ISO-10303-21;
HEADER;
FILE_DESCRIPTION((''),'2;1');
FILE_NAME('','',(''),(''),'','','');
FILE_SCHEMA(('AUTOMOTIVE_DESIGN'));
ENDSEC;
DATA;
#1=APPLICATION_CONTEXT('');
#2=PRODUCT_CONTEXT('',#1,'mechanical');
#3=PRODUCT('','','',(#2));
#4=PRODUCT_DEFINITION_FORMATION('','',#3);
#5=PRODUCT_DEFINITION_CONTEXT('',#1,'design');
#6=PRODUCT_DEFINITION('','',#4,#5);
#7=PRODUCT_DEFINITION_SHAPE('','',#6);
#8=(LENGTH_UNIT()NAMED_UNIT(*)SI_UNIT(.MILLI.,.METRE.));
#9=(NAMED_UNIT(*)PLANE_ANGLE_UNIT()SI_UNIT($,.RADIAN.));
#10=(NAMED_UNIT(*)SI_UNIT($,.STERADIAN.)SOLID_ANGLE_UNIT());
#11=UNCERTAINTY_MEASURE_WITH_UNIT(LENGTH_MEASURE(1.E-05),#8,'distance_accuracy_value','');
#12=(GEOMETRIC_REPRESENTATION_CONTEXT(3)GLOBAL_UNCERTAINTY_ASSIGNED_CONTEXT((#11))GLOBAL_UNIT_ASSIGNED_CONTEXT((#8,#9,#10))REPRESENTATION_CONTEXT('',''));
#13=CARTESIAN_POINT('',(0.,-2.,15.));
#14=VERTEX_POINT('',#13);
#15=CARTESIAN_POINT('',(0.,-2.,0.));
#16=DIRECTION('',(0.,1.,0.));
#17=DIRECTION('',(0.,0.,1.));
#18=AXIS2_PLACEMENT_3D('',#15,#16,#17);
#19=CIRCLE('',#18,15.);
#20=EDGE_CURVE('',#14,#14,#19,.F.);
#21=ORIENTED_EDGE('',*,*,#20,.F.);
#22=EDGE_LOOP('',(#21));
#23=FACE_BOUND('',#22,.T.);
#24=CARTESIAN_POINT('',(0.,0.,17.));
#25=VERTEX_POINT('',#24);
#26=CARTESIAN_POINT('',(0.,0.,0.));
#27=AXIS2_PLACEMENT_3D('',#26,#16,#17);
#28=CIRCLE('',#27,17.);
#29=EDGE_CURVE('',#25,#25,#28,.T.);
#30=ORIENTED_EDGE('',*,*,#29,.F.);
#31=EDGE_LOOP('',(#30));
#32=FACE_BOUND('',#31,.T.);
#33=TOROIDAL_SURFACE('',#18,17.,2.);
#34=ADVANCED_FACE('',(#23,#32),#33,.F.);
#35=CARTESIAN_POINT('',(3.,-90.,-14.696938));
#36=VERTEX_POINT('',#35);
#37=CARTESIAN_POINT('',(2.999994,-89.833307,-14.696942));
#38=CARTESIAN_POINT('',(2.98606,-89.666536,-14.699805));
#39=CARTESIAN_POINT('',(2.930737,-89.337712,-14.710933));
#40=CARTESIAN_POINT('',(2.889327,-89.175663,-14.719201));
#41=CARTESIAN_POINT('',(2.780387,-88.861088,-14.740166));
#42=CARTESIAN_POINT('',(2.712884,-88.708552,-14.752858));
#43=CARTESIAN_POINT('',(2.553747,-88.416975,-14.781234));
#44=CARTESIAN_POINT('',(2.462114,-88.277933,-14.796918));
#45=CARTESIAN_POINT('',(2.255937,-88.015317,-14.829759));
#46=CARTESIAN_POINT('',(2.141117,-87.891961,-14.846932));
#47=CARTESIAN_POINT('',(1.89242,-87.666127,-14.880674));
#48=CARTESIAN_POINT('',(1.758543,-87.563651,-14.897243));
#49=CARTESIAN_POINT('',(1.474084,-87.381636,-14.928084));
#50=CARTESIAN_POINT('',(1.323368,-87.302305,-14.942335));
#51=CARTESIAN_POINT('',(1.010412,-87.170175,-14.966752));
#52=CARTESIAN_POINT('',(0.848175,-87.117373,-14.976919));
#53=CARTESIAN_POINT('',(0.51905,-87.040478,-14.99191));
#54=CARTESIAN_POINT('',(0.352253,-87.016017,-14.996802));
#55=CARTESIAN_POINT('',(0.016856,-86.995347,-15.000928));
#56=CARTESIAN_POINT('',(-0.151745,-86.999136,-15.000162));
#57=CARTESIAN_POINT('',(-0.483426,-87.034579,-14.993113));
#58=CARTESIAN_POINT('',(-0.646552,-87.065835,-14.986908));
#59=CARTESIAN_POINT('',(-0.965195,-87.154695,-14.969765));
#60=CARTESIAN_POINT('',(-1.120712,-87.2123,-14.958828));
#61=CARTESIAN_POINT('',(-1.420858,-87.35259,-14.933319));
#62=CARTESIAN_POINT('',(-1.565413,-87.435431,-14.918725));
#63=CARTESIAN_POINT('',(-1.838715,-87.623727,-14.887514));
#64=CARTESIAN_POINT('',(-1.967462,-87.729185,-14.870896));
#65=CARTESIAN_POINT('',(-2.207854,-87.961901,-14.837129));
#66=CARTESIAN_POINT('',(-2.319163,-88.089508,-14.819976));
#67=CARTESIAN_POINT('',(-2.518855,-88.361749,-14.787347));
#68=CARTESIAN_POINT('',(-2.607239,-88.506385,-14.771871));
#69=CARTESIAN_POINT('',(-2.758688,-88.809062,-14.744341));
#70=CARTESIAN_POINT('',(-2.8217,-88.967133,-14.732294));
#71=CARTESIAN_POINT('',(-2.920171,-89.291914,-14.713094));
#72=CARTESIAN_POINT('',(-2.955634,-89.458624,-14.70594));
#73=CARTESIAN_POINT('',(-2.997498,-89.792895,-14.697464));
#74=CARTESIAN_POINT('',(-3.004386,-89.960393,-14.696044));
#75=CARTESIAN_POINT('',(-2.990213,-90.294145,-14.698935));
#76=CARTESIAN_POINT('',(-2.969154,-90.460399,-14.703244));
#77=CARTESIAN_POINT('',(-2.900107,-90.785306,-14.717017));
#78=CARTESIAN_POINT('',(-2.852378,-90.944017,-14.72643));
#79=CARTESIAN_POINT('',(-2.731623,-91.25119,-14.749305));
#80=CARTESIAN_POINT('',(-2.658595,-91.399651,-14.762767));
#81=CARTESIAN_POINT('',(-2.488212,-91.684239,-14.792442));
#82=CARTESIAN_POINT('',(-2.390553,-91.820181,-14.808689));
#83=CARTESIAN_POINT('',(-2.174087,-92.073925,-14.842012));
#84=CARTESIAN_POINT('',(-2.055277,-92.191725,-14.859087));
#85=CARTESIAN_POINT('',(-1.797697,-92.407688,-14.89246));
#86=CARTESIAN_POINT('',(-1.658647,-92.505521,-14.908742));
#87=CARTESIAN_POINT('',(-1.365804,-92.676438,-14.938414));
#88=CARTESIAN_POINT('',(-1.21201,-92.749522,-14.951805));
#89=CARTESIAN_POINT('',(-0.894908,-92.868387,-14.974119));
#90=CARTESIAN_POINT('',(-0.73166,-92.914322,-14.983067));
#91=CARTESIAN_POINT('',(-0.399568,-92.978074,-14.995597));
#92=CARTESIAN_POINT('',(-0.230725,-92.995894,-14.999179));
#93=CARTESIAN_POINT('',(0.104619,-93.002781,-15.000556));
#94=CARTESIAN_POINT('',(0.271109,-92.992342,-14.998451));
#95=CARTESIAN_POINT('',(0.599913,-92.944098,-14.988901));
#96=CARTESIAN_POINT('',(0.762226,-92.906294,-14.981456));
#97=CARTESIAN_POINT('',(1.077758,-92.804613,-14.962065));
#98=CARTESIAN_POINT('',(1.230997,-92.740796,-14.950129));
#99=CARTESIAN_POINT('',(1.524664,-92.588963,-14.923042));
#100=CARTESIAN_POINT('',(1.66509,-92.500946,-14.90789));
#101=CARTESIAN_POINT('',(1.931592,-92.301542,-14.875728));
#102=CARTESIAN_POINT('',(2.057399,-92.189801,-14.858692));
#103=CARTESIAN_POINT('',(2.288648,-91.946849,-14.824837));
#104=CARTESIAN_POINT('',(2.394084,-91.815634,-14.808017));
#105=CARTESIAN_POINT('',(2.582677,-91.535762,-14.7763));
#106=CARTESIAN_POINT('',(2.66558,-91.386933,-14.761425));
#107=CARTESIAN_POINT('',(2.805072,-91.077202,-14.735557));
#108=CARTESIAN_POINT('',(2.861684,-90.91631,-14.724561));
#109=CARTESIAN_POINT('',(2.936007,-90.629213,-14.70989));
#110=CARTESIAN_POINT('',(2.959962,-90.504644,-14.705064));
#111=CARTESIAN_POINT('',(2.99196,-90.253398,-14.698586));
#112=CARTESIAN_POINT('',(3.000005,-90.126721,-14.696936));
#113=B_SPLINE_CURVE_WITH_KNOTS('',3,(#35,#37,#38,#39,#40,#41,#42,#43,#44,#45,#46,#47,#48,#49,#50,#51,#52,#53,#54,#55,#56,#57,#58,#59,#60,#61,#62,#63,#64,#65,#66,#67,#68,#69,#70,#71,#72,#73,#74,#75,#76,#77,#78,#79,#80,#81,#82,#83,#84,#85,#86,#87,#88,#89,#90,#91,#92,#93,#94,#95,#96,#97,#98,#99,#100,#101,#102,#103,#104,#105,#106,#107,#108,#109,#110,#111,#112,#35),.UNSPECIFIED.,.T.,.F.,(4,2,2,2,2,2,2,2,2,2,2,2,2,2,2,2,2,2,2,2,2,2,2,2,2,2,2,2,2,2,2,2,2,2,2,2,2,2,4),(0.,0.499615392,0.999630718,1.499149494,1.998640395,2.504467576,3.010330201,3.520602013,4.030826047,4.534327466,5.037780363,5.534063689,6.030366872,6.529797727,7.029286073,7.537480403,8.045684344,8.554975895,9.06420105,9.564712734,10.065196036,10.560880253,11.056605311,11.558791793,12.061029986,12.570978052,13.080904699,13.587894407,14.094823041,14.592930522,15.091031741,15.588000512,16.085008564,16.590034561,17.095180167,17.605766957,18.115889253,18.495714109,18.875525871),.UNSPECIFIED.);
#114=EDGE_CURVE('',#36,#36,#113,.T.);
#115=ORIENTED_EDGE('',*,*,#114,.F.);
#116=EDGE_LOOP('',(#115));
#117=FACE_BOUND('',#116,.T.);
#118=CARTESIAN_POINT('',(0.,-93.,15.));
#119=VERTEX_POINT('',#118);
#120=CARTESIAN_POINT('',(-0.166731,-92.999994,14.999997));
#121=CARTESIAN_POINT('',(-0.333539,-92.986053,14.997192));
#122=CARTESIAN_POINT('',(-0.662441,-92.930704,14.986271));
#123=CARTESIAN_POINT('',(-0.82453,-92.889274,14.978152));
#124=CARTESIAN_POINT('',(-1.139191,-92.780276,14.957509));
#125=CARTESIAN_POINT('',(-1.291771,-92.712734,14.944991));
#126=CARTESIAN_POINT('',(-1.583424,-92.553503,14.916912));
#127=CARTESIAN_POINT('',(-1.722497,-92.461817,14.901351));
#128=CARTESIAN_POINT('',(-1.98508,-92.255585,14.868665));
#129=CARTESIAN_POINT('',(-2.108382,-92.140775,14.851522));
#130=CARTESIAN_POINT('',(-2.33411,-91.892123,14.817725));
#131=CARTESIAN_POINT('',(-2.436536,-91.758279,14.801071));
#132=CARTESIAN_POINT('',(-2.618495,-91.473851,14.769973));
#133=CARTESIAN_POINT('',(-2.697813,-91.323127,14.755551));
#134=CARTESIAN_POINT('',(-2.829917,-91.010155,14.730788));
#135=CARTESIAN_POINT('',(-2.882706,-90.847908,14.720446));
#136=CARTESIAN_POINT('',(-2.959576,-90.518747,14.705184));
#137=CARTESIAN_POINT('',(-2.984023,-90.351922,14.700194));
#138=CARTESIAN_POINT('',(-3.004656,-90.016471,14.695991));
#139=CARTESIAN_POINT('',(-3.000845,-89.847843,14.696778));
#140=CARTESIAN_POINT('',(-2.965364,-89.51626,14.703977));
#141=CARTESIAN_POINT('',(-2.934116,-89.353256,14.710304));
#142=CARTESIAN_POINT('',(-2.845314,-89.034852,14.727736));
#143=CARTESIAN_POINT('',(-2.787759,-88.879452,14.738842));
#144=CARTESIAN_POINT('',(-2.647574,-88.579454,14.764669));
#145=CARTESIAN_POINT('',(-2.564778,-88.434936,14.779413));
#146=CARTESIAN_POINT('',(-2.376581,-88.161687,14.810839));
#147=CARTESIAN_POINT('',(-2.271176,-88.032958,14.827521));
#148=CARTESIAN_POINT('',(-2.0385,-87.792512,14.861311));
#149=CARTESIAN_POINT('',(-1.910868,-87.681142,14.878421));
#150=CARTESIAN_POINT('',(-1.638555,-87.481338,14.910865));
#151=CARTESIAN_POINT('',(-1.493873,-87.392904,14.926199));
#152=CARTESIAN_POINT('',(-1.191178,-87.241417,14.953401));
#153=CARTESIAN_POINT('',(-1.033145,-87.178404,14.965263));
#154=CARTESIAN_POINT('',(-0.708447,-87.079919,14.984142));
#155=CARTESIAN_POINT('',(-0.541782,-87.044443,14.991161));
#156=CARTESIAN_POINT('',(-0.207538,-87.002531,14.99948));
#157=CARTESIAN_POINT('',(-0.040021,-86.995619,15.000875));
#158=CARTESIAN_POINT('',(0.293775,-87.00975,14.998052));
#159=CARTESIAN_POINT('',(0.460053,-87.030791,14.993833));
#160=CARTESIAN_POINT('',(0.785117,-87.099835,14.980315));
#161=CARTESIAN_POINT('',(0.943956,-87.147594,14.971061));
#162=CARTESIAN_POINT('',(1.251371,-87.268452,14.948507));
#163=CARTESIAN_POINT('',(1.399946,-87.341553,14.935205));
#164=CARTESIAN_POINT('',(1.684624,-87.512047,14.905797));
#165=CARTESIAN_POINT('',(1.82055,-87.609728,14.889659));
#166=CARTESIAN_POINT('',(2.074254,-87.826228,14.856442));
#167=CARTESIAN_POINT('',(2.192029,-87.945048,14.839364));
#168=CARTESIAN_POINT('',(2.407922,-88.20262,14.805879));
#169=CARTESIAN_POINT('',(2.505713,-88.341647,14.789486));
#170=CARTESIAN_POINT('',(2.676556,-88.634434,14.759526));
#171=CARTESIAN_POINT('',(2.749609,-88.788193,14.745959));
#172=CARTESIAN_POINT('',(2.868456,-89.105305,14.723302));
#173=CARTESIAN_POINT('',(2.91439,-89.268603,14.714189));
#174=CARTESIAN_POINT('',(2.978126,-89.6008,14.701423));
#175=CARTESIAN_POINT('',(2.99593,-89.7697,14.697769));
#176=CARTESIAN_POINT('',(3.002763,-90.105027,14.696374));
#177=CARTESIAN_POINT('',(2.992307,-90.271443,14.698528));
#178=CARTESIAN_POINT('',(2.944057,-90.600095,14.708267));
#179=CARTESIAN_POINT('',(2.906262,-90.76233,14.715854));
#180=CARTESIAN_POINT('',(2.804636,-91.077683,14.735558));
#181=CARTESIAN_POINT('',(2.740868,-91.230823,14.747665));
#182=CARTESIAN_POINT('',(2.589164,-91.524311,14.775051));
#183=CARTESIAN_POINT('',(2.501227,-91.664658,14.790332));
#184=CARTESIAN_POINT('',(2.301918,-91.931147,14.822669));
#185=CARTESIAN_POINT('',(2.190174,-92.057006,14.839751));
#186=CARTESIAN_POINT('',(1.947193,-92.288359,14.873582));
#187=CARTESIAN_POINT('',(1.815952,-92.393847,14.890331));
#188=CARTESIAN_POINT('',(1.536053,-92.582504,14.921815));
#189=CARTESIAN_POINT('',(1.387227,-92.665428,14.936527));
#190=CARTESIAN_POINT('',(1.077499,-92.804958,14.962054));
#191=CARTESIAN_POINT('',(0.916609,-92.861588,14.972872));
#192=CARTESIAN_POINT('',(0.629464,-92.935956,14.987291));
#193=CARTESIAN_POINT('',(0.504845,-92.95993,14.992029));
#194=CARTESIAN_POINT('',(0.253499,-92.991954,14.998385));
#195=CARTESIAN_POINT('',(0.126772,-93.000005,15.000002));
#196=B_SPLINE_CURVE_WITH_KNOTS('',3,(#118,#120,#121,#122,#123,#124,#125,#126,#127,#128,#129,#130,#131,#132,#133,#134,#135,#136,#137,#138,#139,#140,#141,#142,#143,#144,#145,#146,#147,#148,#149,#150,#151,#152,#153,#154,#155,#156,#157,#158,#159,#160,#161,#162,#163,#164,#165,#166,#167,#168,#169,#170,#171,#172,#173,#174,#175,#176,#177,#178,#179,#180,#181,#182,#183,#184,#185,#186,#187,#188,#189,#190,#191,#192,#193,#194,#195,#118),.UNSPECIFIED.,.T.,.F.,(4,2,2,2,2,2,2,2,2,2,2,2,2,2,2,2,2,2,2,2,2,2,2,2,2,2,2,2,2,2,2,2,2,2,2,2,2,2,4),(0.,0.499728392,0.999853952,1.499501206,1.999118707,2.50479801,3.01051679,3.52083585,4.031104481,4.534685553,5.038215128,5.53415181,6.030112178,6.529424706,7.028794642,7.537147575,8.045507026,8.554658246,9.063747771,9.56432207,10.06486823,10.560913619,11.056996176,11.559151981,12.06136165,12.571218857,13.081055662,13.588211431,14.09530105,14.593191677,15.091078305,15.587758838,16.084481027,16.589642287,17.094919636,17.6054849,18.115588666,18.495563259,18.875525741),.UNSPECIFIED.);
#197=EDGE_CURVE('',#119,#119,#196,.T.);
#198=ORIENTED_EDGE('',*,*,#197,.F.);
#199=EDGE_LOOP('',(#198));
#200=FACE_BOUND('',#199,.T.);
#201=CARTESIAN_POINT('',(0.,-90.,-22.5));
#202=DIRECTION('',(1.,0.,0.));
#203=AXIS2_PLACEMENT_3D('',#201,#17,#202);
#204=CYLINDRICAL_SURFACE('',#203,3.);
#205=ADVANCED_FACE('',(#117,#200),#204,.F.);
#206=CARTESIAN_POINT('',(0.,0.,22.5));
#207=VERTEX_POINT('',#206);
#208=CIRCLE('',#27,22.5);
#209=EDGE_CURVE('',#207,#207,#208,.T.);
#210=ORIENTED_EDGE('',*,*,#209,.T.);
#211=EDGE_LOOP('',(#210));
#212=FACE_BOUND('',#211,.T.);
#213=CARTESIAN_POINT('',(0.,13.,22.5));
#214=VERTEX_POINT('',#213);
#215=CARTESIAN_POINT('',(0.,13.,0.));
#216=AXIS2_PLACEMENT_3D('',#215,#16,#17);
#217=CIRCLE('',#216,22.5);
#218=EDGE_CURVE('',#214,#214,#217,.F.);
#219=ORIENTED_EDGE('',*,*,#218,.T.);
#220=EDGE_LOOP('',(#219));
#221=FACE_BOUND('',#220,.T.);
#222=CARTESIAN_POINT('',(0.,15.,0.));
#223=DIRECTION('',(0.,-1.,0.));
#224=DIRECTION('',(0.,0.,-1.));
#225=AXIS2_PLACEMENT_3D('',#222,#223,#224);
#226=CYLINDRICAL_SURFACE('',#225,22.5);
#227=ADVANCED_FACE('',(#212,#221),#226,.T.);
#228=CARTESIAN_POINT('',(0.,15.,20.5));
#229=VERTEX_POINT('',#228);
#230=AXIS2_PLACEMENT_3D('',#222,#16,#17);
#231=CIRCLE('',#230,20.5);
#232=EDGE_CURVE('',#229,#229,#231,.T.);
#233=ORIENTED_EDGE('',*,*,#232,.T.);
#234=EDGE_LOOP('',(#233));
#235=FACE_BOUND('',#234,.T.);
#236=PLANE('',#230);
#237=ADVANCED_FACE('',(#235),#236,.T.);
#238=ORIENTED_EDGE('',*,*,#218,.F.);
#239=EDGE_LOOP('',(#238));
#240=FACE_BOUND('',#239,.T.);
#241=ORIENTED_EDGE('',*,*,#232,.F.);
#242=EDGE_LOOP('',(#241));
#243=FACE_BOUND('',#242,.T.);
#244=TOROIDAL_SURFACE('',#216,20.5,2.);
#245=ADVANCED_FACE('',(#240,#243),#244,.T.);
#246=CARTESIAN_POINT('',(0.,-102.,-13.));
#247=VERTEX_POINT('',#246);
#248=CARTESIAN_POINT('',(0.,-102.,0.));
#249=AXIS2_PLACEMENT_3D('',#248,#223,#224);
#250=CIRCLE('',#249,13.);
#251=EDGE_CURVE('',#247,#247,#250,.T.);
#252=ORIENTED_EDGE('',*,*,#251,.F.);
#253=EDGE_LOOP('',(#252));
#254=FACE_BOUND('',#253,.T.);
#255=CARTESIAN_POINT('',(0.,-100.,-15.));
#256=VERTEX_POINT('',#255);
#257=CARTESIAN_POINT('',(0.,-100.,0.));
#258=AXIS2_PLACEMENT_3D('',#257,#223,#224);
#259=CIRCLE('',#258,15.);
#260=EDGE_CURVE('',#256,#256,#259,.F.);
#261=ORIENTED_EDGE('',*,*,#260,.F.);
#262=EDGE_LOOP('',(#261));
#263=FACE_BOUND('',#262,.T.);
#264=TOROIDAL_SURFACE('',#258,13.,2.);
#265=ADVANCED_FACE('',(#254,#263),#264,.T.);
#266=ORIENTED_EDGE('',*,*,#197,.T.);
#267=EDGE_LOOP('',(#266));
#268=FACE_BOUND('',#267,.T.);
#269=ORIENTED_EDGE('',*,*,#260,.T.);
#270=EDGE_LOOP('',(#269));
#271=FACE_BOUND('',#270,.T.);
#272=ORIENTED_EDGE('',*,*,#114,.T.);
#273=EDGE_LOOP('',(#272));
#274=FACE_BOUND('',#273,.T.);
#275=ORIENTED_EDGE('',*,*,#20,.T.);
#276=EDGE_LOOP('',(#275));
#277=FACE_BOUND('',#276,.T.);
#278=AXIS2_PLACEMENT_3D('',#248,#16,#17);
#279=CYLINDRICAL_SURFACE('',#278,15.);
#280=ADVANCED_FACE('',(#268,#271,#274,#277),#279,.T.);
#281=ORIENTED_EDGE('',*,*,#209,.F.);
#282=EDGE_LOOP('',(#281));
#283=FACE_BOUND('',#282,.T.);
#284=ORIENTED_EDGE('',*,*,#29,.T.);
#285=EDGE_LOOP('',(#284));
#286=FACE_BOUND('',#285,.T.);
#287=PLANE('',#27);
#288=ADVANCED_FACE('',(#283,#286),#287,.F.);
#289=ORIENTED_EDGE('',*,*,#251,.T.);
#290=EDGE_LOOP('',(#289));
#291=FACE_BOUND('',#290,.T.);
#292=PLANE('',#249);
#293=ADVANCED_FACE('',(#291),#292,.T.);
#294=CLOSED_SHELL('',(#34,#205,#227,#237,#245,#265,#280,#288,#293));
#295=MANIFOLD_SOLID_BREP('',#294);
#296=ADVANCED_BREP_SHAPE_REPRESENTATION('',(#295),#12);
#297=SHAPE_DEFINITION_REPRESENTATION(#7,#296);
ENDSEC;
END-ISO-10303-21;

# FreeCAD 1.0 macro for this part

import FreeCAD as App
import Part
import Sketcher
from FreeCAD import Vector


def edges_at(feature, points):
    """Names of the edges that pass closest to the given points."""
    edges = feature.Shape.Edges
    near = lambda p: min(range(len(edges)), key=lambda i: edges[i].distToShape(Part.Vertex(*p))[0])
    return sorted({f"Edge{near(p) + 1}" for p in points})

doc = App.newDocument("Part")
body = doc.addObject("PartDesign::Body", "Body")

# Sketch on XZ plane
sketch1 = body.newObject("Sketcher::SketchObject", "Sketch")
sketch1.AttachmentSupport = (doc.getObject("XZ_Plane"), [""])
sketch1.MapMode = "FlatFace"
sketch1.addGeometry(Part.Circle(Vector(0, 0, 0), Vector(0, 0, 1), 22.5), False)
sketch1.addConstraint([
    Sketcher.Constraint("Coincident", 0, 3, -1, 1),
    Sketcher.Constraint("Diameter", 0, 45.0),
])
pad1 = body.newObject("PartDesign::Pad", "Pad")
pad1.Profile = sketch1
pad1.Length = 15
pad1.Reversed = True

# Sketch on XZ plane
sketch2 = body.newObject("Sketcher::SketchObject", "Sketch001")
sketch2.AttachmentSupport = (doc.getObject("XZ_Plane"), [""])
sketch2.MapMode = "FlatFace"
sketch2.addGeometry(Part.Circle(Vector(0, 0, 0), Vector(0, 0, 1), 15), False)
sketch2.addConstraint([
    Sketcher.Constraint("Coincident", 0, 3, -1, 1),
    Sketcher.Constraint("Diameter", 0, 30.0),
])
pad2 = body.newObject("PartDesign::Pad", "Pad001")
pad2.Profile = sketch2
pad2.Length = 102
doc.recompute()

fillet = body.newObject("PartDesign::Fillet", "Fillet")
fillet.Base = (pad2, edges_at(pad2, [(-22.5, 15, 0), (-15, 0, 0), (-15, -102, 0)]))
fillet.Radius = 2

# Sketch on XY plane
sketch3 = body.newObject("Sketcher::SketchObject", "Sketch002")
sketch3.AttachmentSupport = (doc.getObject("XY_Plane"), [""])
sketch3.MapMode = "FlatFace"
sketch3.addGeometry(Part.Circle(Vector(0, -90, 0), Vector(0, 0, 1), 3), False)
sketch3.addConstraint([
    Sketcher.Constraint("PointOnObject", 0, 3, -2),
    Sketcher.Constraint("Diameter", 0, 6.0),
    Sketcher.Constraint("DistanceY", 0, 3, -1, 1, 90.0),
])
pocket1 = body.newObject("PartDesign::Pocket", "Pocket")
pocket1.Profile = sketch3
pocket1.Type = "ThroughAll"
pocket1.Midplane = True

doc.recompute()
